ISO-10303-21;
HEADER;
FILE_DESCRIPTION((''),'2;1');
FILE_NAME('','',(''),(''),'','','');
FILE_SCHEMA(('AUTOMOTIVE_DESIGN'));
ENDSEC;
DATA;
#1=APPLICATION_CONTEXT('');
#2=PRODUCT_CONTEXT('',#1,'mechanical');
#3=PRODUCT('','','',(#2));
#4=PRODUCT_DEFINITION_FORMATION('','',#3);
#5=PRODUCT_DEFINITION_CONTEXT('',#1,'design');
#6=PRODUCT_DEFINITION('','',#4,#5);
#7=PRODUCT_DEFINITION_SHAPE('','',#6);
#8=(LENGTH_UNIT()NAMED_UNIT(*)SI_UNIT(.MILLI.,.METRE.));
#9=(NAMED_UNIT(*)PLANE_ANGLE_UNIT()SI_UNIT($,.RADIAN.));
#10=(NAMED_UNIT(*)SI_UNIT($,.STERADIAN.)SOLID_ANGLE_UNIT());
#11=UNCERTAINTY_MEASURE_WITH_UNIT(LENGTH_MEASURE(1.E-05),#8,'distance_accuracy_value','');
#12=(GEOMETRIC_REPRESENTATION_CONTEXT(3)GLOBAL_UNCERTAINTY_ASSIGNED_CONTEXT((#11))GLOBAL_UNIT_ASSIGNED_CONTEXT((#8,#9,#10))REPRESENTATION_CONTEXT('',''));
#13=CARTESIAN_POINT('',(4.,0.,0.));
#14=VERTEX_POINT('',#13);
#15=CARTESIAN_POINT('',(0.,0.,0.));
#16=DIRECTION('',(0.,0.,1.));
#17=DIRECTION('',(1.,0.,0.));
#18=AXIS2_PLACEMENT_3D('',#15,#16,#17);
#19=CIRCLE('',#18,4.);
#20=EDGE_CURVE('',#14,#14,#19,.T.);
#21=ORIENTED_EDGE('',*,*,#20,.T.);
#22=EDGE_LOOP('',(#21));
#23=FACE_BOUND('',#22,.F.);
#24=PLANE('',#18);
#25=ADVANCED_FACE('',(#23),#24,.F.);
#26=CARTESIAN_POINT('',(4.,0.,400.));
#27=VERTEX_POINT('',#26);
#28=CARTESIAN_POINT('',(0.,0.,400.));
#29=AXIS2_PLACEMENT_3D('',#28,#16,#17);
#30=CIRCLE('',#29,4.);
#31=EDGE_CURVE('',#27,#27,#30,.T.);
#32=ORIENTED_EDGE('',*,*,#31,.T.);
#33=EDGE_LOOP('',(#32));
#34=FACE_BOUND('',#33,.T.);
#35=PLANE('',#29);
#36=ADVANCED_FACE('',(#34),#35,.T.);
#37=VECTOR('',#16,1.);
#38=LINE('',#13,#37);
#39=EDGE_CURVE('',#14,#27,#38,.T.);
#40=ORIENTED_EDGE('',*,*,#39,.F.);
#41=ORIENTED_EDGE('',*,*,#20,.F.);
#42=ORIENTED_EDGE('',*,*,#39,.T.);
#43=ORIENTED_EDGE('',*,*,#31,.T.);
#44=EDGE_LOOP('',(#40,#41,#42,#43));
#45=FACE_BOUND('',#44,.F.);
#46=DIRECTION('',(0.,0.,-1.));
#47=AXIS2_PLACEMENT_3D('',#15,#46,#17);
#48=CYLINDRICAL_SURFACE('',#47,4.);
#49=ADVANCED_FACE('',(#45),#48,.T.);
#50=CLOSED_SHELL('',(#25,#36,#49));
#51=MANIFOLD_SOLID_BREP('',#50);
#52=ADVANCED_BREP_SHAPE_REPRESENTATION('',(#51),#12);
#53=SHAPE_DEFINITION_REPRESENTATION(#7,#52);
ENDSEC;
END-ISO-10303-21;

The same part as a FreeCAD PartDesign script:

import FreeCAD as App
import Part
import Sketcher
Q = App.Units.Quantity

doc = App.newDocument("Part")
params = doc.addObject("Spreadsheet::Sheet", "Params")
for row, (alias, value) in enumerate([
    ("sketch1_diameter", "8 mm"),
    ("pad1_length", "400 mm"),
], start=1):
    params.set(f"A{row}", alias)
    params.set(f"B{row}", "=" + value)
    params.setAlias(f"B{row}", alias)

body = doc.addObject("PartDesign::Body", "Body")

sketch1 = doc.addObject("Sketcher::SketchObject", "Sketch")
body.addObject(sketch1)
sketch1.AttachmentSupport = (doc.XY_Plane, [""])
sketch1.MapMode = "FlatFace"
sketch1.addGeometry(Part.Circle(App.Vector(0, 0, 0), App.Vector(0, 0, 1), 4), False)
sketch1.addConstraint(Sketcher.Constraint("Coincident", 0, 3, -1, 1))
sketch1.addConstraint(Sketcher.Constraint("Diameter", 0, Q("8 mm")))
sketch1.setExpression("Constraints[1]", "Params.sketch1_diameter")
pad1 = doc.addObject("PartDesign::Pad", "Pad")
body.addObject(pad1)
pad1.Profile = sketch1
pad1.setExpression("Length", "Params.pad1_length")

doc.recompute()
